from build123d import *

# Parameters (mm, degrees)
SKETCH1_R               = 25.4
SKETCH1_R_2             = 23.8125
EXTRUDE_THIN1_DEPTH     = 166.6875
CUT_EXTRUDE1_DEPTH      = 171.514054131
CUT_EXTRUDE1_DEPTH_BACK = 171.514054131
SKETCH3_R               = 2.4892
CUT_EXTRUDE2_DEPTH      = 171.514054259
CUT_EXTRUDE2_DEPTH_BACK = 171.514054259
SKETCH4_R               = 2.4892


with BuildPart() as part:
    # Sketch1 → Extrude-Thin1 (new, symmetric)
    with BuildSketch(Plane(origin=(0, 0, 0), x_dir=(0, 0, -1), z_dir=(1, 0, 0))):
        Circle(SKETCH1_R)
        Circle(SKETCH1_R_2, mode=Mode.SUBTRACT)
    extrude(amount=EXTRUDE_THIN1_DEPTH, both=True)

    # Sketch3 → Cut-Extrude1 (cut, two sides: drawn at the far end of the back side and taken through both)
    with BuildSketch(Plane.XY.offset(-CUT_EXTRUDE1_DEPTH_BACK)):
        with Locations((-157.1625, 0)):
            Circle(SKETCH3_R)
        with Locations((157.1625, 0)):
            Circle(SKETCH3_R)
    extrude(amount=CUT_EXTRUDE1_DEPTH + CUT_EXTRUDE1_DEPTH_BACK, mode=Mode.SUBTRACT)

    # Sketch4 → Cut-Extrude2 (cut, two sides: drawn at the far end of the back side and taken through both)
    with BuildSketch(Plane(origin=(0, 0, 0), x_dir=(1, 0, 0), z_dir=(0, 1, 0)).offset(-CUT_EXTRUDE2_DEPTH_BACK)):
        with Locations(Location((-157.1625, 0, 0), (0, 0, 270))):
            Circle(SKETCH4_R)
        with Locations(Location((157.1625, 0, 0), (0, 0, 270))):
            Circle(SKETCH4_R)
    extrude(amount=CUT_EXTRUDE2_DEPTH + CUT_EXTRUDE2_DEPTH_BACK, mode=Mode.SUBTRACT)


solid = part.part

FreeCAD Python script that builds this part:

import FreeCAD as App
import Part
import Sketcher
Q = App.Units.Quantity

doc = App.newDocument("Part")
body = doc.addObject("PartDesign::Body", "Body")

# Sketch on YZ plane
sketch1 = body.newObject("Sketcher::SketchObject", "Sketch")
sketch1.AttachmentSupport = (doc.getObject("YZ_Plane"), [""])
sketch1.MapMode = "FlatFace"
sketch1.addGeometry(Part.Circle(App.Vector(0, 0, 0), App.Vector(0, 0, 1), 25), False)
sketch1.addGeometry(Part.Circle(App.Vector(0, 0, 0), App.Vector(0, 0, 1), 24), False)
sketch1.addConstraint(Sketcher.Constraint("Coincident", 0, 3, -1, 1))
sketch1.addConstraint(Sketcher.Constraint("Coincident", 1, 3, -1, 1))
sketch1.addConstraint(Sketcher.Constraint("Diameter", 0, Q("2 in")))
sketch1.addConstraint(Sketcher.Constraint("Diameter", 1, Q("1.875 in")))
pad1 = body.newObject("PartDesign::Pad", "Pad")
pad1.Profile = sketch1
pad1.Length = Q("13.125 in")
pad1.Midplane = True

# Sketch on XY plane
sketch2 = body.newObject("Sketcher::SketchObject", "Sketch001")
sketch2.AttachmentSupport = (doc.getObject("XY_Plane"), [""])
sketch2.MapMode = "FlatFace"
sketch2.addGeometry(Part.Circle(App.Vector(-157.2, 0, 0), App.Vector(0, 0, 1), 2.5), False)
sketch2.addGeometry(Part.Circle(App.Vector(157.2, 0, 0), App.Vector(0, 0, 1), 2.5), False)
sketch2.addConstraint(Sketcher.Constraint("Equal", 0, 1))
sketch2.addConstraint(Sketcher.Constraint("Symmetric", 0, 3, 1, 3, -1, 1))
sketch2.addConstraint(Sketcher.Constraint("PointOnObject", 0, 3, -1))
sketch2.addConstraint(Sketcher.Constraint("Diameter", 0, Q("0.196 in")))
sketch2.addConstraint(Sketcher.Constraint("DistanceX", 0, 3, -1, 1, Q("6.1875 in")))
pocket1 = body.newObject("PartDesign::Pocket", "Pocket")
pocket1.Profile = sketch2
pocket1.Type = "ThroughAll"
pocket1.Midplane = True

# Sketch on XZ plane
sketch3 = body.newObject("Sketcher::SketchObject", "Sketch002")
sketch3.AttachmentSupport = (doc.getObject("XZ_Plane"), [""])
sketch3.MapMode = "FlatFace"
sketch3.addGeometry(Part.Circle(App.Vector(-157.2, 0, 0), App.Vector(0, 0, 1), 2.5), False)
sketch3.addGeometry(Part.Circle(App.Vector(157.2, 0, 0), App.Vector(0, 0, 1), 2.5), False)
sketch3.addConstraint(Sketcher.Constraint("Equal", 0, 1))
sketch3.addConstraint(Sketcher.Constraint("Symmetric", 0, 3, 1, 3, -1, 1))
sketch3.addConstraint(Sketcher.Constraint("PointOnObject", 0, 3, -1))
sketch3.addConstraint(Sketcher.Constraint("Diameter", 0, Q("0.196 in")))
sketch3.addConstraint(Sketcher.Constraint("DistanceX", 0, 3, -1, 1, Q("6.1875 in")))
pocket2 = body.newObject("PartDesign::Pocket", "Pocket001")
pocket2.Profile = sketch3
pocket2.Type = "ThroughAll"
pocket2.Midplane = True

doc.recompute()
